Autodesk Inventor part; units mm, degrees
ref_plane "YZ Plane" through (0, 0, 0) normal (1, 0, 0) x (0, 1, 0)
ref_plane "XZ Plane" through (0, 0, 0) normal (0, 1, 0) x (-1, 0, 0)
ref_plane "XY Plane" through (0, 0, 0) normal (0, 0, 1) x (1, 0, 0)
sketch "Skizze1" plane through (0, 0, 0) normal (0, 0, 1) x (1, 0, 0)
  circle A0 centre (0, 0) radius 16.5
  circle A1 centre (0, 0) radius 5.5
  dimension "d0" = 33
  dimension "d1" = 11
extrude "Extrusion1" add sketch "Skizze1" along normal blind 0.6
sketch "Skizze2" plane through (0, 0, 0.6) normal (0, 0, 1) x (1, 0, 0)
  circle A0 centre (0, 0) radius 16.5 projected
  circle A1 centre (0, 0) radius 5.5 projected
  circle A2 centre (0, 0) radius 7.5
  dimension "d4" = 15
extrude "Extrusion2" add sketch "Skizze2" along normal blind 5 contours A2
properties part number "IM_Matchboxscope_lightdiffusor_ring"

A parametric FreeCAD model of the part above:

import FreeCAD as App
import Part
import Sketcher

V = App.Vector
Q = App.Units.Quantity

doc = App.newDocument("Part")
body = doc.addObject("PartDesign::Body", "Body")

# Sketch on XY plane
sketch1 = body.newObject("Sketcher::SketchObject", "Sketch")
sketch1.AttachmentSupport = (doc.getObject("XY_Plane"), [""])
sketch1.MapMode = "FlatFace"
sketch1.addGeometry([
    Part.Circle(V(0, 0, 0), V(0, 0, 1), 16.5),
    Part.Circle(V(0, 0, 0), V(0, 0, 1), 5.5),
], False)
sketch1.addConstraint([
    Sketcher.Constraint("Coincident", 0, 3, -1, 1),
    Sketcher.Constraint("Coincident", 1, 3, -1, 1),
    Sketcher.Constraint("Diameter", 0, Q("33 mm")),
    Sketcher.Constraint("Diameter", 1, Q("11 mm")),
])
pad1 = body.newObject("PartDesign::Pad", "Pad")
pad1.Profile = sketch1
pad1.Length = 0.6

# Sketch on XY plane
sketch2 = body.newObject("Sketcher::SketchObject", "Sketch001")
sketch2.AttachmentSupport = (doc.getObject("XY_Plane"), [""])
sketch2.MapMode = "FlatFace"
sketch2.AttachmentOffset = App.Placement(V(0, 0, 0.6), App.Rotation())
sketch2.addGeometry([
    Part.Circle(V(0, 0, 0), V(0, 0, 1), 7.5),
    Part.Circle(V(0, 0, 0), V(0, 0, 1), 5.5),
], False)
sketch2.addConstraint([
    Sketcher.Constraint("Coincident", 0, 3, -1, 1),
    Sketcher.Constraint("Coincident", 1, 3, -1, 1),
    Sketcher.Constraint("Diameter", 0, Q("15 mm")),
    Sketcher.Constraint("Diameter", 1, Q("11 mm")),
])
pad2 = body.newObject("PartDesign::Pad", "Pad001")
pad2.Profile = sketch2
pad2.Length = 5

doc.recompute()
